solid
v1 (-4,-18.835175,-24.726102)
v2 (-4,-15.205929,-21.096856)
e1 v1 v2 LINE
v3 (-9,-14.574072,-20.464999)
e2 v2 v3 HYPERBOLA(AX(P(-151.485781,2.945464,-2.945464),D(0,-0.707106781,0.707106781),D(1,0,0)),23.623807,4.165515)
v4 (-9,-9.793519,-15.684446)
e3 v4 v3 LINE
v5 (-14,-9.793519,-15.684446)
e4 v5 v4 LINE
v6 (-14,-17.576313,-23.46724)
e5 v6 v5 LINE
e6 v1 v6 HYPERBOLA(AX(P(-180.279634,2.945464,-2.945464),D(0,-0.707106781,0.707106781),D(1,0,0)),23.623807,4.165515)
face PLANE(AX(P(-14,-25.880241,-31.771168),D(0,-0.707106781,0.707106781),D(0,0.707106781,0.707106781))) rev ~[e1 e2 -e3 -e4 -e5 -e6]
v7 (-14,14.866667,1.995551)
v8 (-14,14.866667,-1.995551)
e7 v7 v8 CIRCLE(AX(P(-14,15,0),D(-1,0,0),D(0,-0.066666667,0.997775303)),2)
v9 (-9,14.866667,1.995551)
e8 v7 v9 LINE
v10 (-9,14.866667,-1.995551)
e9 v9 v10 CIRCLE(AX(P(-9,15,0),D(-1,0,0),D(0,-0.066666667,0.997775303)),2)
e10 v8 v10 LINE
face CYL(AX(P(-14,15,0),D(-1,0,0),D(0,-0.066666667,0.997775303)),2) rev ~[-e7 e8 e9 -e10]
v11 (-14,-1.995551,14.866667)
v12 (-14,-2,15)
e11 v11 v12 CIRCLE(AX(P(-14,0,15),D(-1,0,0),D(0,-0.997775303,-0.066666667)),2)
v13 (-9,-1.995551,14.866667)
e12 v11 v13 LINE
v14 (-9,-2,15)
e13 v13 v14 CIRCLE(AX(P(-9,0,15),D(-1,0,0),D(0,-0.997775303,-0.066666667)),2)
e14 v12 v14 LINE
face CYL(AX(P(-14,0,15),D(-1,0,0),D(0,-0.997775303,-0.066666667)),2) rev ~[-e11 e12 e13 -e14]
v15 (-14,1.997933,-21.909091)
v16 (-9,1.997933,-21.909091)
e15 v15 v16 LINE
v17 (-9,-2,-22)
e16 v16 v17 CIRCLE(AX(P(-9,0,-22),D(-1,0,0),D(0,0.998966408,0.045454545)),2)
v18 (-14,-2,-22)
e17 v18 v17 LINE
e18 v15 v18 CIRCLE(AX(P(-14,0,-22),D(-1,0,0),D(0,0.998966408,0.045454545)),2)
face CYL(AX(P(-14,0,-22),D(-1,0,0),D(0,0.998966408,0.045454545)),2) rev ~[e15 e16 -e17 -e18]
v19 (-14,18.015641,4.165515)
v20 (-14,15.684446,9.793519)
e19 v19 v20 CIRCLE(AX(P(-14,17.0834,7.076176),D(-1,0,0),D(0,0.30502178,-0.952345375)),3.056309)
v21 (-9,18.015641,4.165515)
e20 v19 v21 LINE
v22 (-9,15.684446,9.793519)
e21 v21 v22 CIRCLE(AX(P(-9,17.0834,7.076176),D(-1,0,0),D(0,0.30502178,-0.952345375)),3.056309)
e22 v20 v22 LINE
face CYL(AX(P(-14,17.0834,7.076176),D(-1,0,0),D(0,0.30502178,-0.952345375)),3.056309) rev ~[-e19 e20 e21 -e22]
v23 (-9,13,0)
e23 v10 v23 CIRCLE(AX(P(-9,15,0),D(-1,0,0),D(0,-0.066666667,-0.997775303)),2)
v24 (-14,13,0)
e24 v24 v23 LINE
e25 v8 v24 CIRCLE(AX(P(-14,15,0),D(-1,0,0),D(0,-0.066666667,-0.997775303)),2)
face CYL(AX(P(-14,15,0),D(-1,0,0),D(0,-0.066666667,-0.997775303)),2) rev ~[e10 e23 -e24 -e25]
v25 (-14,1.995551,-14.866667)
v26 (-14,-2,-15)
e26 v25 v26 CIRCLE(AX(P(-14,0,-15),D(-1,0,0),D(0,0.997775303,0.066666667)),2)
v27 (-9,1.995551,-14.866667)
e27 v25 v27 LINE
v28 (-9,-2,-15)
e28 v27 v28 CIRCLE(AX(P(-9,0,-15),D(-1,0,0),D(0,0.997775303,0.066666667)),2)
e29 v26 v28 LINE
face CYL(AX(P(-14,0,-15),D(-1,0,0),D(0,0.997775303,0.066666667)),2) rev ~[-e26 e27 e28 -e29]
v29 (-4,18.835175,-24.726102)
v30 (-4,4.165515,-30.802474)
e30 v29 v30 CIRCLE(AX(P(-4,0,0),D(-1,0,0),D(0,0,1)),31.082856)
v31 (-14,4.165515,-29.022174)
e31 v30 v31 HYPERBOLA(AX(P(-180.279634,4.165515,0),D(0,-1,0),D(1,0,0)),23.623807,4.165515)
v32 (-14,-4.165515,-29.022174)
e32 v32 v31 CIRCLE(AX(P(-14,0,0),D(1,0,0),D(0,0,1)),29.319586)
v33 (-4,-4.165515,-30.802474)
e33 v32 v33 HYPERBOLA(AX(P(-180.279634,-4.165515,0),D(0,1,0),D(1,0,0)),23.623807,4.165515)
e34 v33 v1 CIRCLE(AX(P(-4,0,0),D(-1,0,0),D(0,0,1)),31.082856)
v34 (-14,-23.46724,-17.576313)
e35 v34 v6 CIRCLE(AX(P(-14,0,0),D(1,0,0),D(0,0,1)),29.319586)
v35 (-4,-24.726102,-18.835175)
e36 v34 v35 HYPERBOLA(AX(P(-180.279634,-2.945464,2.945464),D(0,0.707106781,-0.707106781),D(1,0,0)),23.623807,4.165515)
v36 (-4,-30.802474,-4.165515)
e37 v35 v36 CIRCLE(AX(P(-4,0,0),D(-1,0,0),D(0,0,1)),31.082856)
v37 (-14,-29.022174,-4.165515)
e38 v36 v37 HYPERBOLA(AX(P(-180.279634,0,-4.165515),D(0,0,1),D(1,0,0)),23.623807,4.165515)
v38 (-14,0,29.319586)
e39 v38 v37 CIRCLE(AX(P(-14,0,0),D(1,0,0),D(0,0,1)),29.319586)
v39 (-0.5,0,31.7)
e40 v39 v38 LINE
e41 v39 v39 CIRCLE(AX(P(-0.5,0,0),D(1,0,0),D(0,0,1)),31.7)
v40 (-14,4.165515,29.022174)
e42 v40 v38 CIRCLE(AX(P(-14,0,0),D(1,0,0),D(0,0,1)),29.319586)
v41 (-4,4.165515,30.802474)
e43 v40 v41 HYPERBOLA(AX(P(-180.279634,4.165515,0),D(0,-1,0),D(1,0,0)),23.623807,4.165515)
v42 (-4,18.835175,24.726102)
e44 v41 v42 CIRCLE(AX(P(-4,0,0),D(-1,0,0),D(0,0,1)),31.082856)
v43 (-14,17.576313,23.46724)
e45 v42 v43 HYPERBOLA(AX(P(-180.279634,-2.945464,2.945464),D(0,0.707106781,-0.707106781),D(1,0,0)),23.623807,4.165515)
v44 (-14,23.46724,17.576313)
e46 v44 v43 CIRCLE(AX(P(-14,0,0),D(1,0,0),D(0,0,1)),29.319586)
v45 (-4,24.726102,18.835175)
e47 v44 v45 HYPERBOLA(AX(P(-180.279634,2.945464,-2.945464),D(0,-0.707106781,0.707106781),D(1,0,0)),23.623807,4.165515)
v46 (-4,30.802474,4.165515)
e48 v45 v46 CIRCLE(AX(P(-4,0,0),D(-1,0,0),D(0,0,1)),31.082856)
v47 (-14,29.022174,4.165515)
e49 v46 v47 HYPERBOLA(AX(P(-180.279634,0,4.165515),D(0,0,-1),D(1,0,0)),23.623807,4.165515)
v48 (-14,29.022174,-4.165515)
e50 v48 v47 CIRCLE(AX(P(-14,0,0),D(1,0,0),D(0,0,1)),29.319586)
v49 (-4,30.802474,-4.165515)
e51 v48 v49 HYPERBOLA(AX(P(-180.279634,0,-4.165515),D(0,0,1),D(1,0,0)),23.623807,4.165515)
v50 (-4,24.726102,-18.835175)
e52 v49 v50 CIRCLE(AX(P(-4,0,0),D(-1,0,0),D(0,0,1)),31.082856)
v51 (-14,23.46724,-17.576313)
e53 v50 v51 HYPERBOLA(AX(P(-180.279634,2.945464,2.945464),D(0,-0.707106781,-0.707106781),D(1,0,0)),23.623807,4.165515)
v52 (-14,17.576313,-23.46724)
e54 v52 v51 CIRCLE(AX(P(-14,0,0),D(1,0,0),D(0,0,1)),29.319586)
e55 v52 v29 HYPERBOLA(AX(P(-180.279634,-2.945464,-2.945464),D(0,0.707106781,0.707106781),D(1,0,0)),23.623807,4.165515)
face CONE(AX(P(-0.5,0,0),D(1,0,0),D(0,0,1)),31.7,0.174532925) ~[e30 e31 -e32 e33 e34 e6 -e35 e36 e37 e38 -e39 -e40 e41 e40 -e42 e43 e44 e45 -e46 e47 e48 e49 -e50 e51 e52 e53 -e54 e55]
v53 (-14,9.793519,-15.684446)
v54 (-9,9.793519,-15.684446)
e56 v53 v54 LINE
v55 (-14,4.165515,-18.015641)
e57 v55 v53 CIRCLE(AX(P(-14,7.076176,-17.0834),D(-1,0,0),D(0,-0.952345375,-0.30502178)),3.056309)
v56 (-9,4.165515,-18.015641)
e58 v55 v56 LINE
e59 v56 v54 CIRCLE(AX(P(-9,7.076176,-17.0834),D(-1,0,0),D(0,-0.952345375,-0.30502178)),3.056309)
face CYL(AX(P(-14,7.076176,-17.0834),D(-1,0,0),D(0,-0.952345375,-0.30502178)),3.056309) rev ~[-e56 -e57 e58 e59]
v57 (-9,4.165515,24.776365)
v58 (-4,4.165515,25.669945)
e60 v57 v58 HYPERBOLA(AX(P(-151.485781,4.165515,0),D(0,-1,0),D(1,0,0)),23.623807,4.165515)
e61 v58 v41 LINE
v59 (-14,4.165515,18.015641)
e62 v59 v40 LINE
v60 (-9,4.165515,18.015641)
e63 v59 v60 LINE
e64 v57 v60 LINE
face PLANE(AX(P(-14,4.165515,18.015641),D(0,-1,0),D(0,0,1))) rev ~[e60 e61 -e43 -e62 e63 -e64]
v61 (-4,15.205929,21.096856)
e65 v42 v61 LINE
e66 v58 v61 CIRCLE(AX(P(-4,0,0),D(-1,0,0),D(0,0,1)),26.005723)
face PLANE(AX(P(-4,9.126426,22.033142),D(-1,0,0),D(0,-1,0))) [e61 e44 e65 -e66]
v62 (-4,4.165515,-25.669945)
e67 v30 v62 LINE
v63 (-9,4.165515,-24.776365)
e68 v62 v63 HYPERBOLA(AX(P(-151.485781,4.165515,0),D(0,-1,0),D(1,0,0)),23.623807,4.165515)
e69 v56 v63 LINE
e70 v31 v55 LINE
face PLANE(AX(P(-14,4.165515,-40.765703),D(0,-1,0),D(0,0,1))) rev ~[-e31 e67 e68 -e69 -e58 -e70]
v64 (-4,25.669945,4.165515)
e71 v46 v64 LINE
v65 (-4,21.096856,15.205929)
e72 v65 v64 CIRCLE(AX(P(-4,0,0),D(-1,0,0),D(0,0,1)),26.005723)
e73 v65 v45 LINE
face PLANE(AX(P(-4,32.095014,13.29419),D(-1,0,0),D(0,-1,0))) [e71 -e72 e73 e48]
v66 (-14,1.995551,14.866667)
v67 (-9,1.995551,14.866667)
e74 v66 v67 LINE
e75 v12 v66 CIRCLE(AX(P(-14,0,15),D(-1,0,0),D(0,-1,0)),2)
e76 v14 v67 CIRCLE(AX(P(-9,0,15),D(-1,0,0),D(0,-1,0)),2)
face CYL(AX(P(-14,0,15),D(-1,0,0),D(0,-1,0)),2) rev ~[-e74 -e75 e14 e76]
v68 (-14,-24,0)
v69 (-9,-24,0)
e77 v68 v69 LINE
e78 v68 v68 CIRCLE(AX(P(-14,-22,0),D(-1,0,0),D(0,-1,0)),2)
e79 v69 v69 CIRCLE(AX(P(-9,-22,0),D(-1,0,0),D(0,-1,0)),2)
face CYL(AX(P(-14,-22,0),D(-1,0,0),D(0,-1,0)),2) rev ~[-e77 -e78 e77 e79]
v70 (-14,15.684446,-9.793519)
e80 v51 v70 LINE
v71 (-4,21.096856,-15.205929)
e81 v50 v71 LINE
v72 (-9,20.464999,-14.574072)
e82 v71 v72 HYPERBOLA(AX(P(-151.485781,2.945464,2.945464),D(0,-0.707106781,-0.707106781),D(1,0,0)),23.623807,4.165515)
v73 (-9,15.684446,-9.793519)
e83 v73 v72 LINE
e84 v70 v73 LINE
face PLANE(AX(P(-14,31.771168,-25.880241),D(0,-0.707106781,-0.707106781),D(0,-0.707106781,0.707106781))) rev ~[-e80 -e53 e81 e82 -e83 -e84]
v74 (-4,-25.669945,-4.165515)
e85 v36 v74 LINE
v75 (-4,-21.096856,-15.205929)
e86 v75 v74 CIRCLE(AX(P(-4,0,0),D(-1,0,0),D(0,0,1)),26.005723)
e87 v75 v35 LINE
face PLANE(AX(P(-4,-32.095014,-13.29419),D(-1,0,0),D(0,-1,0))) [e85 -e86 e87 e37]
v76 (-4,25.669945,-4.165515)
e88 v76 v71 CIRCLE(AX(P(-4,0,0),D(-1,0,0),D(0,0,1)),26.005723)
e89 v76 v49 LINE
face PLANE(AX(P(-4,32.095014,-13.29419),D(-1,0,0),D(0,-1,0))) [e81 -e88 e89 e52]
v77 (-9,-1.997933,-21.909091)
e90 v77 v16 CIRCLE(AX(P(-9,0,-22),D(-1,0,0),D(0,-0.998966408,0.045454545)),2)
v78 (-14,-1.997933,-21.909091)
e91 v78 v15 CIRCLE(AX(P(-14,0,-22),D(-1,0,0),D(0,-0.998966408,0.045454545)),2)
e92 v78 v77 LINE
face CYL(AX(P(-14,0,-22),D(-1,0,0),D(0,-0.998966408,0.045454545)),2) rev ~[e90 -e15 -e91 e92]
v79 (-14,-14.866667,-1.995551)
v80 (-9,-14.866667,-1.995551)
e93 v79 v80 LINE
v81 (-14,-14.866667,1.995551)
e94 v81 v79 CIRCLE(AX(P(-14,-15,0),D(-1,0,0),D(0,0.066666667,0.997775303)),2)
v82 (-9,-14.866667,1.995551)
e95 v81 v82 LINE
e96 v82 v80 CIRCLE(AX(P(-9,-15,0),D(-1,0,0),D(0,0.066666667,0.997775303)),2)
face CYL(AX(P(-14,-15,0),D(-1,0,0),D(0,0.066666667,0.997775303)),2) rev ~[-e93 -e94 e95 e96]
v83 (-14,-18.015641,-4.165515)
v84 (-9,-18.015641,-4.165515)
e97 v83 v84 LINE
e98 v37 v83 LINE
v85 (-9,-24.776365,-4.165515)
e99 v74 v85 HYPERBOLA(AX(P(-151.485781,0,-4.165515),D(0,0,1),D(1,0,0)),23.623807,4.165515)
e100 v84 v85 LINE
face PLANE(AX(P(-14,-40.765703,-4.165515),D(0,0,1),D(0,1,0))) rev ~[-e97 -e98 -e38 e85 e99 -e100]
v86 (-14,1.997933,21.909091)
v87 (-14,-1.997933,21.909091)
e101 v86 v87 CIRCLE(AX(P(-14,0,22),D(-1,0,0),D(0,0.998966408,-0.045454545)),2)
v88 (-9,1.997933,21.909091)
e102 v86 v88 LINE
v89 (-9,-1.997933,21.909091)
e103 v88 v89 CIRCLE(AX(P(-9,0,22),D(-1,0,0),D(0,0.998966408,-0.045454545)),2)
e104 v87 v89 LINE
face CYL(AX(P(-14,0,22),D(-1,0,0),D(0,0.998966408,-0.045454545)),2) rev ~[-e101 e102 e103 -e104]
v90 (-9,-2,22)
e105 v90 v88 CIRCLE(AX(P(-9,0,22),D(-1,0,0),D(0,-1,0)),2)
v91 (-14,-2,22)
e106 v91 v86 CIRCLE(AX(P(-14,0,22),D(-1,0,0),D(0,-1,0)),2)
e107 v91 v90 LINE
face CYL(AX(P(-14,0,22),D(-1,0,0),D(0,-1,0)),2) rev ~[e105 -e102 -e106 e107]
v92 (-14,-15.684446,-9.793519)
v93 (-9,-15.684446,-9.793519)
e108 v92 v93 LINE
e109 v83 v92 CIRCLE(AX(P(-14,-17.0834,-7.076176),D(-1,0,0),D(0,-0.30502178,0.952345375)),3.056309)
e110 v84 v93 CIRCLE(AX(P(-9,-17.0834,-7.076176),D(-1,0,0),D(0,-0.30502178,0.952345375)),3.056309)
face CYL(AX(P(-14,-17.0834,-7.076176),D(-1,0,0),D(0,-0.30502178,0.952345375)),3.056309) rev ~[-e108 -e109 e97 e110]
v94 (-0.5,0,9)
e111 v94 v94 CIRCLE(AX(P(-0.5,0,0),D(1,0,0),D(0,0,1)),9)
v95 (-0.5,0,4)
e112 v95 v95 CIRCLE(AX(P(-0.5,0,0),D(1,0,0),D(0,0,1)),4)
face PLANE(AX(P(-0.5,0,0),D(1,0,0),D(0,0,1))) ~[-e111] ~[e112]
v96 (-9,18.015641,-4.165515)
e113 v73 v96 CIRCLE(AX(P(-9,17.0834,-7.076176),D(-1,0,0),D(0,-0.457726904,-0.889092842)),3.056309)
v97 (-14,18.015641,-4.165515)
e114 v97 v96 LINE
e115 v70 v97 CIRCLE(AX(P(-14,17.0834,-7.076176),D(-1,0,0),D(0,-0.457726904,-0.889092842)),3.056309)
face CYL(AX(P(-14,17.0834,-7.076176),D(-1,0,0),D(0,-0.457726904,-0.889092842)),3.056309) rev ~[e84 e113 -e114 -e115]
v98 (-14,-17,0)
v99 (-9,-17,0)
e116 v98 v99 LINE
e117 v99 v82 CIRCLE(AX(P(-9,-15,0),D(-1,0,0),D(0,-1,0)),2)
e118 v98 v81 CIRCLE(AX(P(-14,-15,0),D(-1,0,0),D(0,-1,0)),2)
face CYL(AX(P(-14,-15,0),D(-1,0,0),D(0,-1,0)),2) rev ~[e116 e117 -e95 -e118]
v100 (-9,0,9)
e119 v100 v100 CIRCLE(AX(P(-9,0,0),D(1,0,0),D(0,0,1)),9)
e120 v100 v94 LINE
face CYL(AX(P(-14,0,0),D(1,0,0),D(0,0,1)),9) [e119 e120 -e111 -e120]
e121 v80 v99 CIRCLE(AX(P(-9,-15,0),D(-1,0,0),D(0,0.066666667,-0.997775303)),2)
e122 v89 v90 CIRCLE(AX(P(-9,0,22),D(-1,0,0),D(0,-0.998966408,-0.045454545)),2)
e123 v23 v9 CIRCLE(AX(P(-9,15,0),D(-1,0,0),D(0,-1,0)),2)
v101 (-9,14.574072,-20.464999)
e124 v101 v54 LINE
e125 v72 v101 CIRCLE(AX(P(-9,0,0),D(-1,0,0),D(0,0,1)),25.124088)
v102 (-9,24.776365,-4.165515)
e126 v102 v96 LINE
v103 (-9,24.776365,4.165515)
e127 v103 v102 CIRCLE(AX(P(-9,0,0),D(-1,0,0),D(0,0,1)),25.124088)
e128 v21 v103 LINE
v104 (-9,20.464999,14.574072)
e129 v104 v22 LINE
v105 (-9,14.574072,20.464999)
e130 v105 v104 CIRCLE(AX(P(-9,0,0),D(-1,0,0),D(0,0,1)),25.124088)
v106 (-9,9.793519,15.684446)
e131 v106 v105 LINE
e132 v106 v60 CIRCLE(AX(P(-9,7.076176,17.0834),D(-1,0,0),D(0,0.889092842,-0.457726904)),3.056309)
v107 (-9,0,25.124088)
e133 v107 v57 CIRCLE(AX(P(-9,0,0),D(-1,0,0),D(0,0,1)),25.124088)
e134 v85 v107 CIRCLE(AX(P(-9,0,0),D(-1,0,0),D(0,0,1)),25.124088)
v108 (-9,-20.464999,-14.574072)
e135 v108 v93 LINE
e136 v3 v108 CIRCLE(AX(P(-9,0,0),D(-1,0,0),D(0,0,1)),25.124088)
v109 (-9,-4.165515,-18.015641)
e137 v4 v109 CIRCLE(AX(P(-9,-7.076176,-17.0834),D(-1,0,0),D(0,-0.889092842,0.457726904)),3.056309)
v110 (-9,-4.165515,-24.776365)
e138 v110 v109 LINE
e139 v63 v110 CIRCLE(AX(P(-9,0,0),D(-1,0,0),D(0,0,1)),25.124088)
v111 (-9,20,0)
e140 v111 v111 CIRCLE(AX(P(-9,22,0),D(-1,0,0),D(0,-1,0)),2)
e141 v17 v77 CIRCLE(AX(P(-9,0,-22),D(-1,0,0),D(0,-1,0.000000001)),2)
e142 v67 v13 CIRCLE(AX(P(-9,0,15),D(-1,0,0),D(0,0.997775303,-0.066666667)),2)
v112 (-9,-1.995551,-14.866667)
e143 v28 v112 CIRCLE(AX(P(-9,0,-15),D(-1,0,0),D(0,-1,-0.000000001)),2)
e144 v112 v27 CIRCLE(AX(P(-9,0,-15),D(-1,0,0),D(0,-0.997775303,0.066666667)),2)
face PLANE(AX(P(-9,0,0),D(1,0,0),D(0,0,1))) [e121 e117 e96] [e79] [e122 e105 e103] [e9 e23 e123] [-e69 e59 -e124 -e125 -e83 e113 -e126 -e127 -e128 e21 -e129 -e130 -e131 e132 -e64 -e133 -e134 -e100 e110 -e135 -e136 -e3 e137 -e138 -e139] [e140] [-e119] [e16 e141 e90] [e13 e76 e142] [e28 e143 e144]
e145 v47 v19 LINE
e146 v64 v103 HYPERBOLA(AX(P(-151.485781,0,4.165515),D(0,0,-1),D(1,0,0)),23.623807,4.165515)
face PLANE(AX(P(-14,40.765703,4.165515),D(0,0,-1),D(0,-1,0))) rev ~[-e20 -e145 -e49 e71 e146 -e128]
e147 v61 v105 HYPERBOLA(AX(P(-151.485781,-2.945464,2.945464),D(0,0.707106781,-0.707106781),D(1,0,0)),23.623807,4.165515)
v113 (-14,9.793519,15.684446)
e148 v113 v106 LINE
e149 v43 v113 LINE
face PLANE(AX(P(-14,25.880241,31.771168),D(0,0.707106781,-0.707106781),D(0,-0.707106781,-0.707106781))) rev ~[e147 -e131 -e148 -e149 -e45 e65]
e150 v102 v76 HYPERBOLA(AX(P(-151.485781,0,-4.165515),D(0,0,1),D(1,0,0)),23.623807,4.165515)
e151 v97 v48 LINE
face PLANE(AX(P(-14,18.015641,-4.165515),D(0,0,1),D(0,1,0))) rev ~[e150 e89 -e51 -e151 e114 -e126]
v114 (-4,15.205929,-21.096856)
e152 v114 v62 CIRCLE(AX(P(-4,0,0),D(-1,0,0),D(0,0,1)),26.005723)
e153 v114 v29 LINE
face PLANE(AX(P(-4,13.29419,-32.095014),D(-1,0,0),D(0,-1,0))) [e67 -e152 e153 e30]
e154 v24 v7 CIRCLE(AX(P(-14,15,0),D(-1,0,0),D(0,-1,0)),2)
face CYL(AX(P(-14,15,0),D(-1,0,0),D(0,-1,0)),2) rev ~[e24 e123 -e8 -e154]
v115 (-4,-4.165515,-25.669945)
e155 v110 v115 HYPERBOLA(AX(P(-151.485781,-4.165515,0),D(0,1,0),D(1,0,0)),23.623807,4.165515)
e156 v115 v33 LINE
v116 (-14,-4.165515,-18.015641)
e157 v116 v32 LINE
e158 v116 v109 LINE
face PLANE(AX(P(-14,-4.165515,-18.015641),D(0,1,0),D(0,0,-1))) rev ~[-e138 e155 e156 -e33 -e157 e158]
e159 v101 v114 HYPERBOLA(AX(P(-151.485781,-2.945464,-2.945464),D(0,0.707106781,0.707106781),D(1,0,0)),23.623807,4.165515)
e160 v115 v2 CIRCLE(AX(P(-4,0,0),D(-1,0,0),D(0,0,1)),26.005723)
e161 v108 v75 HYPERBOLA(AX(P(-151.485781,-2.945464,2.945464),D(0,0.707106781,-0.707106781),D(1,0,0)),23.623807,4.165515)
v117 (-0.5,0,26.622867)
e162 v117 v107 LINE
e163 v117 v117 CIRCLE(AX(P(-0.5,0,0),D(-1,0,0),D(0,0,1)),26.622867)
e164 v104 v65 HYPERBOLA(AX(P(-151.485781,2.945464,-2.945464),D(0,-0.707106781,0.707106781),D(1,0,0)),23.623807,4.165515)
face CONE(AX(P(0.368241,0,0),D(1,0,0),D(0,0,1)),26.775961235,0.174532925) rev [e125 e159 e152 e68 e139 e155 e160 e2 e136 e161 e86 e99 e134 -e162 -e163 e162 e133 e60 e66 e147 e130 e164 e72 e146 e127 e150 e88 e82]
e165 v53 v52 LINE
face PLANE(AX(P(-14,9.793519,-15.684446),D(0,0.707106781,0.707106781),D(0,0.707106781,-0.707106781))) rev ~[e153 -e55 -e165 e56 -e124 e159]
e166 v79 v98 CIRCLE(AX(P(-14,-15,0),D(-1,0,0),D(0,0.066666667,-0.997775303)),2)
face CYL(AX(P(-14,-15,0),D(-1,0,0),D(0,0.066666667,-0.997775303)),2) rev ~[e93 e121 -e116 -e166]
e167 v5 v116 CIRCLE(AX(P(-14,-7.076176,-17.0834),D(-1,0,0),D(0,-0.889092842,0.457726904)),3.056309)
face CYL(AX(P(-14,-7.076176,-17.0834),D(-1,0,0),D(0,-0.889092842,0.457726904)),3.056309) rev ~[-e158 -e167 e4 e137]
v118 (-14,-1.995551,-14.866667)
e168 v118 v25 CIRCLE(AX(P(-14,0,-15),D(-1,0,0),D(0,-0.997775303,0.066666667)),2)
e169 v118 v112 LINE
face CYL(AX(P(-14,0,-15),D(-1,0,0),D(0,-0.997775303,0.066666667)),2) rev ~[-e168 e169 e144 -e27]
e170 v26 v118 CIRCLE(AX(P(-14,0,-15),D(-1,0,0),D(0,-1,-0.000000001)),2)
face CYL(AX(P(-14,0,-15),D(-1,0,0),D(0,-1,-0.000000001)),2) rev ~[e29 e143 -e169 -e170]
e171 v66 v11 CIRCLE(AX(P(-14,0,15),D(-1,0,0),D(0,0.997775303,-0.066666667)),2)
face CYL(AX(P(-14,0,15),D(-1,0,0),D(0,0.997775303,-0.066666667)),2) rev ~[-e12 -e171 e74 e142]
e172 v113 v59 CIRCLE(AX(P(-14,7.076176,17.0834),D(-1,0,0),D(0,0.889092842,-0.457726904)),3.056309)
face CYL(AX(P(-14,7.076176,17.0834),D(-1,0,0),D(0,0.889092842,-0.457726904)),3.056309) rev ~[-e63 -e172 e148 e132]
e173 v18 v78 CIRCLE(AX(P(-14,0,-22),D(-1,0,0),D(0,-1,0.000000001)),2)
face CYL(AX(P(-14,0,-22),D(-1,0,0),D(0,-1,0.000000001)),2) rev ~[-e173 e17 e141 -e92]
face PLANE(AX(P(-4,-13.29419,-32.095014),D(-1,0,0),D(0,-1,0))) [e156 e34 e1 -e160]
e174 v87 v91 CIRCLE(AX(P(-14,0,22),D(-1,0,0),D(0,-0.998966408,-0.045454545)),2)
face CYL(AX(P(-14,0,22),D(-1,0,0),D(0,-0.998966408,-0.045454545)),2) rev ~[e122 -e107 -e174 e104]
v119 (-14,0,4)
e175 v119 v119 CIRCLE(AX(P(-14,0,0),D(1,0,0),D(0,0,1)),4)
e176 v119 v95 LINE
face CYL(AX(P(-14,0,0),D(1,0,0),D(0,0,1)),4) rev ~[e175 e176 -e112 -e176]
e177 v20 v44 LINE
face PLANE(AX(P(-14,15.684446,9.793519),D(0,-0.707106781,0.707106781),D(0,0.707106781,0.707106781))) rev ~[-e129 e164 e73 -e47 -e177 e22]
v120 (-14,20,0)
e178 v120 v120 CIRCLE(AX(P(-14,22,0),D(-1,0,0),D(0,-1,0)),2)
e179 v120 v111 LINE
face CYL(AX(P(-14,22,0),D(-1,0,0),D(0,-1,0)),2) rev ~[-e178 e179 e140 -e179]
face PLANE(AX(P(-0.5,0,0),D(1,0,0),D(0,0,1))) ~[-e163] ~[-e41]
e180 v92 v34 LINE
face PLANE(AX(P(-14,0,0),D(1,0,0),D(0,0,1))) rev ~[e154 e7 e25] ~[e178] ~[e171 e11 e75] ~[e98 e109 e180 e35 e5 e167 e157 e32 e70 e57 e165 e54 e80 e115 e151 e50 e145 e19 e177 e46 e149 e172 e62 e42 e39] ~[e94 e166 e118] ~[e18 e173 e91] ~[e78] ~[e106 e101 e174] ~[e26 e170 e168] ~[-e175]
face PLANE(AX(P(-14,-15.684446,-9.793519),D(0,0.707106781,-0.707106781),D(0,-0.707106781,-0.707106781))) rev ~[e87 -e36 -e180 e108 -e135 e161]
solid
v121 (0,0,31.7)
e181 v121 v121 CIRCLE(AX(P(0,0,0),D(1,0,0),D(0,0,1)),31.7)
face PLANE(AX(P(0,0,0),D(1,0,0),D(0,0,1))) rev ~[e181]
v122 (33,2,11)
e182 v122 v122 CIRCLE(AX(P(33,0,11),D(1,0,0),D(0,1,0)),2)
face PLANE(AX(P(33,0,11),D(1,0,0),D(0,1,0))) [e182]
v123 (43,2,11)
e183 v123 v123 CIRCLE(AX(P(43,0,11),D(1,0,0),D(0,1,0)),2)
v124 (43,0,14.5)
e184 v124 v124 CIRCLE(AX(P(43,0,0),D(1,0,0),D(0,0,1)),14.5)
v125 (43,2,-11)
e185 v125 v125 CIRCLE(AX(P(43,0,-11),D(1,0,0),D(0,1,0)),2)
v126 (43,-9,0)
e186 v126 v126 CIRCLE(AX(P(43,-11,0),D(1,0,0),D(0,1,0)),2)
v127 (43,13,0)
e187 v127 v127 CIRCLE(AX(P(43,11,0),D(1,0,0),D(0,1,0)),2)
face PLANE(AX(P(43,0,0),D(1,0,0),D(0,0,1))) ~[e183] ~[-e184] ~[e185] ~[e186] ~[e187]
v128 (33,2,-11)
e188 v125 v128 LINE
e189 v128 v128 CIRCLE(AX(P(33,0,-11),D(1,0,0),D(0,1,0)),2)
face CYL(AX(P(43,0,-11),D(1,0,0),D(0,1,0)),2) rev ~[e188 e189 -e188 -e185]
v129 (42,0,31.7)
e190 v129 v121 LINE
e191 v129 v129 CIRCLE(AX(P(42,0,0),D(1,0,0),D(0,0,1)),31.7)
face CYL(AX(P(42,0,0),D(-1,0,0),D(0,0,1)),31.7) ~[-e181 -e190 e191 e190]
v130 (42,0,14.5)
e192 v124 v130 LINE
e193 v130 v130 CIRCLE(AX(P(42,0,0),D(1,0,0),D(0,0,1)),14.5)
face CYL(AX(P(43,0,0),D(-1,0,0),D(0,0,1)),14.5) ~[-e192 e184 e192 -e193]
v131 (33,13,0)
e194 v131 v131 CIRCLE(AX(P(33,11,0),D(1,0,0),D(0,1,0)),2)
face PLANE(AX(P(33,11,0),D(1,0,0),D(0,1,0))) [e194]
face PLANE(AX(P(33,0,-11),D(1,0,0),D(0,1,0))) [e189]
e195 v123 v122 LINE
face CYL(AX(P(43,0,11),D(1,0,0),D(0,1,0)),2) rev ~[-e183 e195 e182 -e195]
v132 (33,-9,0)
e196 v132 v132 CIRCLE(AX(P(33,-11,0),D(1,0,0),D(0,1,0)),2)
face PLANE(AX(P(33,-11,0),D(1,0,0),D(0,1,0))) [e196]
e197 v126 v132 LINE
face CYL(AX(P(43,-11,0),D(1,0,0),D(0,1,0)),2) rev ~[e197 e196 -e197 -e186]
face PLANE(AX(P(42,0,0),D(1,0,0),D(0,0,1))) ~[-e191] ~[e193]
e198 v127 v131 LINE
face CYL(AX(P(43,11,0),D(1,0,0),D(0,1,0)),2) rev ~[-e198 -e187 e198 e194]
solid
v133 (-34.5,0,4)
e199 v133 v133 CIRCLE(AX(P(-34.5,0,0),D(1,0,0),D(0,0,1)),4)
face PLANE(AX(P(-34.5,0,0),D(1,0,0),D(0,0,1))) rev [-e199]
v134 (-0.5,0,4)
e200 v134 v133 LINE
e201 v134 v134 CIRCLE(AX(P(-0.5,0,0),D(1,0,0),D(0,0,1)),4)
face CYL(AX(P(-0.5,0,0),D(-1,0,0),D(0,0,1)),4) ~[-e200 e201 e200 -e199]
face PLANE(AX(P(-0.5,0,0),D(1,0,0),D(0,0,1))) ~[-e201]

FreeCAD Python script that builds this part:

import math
import FreeCAD as App
import Part
import Sketcher

V = App.Vector
Q = App.Units.Quantity


def faces_at(feature, points):
    """Names of the faces that lie closest to the given points."""
    faces = feature.Shape.Faces
    near = lambda p: min(range(len(faces)), key=lambda i: faces[i].distToShape(Part.Vertex(*p))[0])
    return sorted({f"Face{near(p) + 1}" for p in points})

doc = App.newDocument("Part")
body = doc.addObject("PartDesign::Body", "Body")

# Sketch on XZ plane
sketch1 = body.newObject("Sketcher::SketchObject", "Sketch")
sketch1.AttachmentSupport = (doc.getObject("XZ_Plane"), [""])
sketch1.MapMode = "FlatFace"
sketch1.addGeometry(Part.LineSegment(V(-14, 4, 0), V(-0.5, 4, 0)), False)
sketch1.addGeometry(Part.LineSegment(V(-0.5, 4, 0), V(-0.5, 31.7, 0)), False)
sketch1.addGeometry(Part.LineSegment(V(-0.5, 31.7, 0), V(-14, 29.319586, 0)), False)
sketch1.addGeometry(Part.LineSegment(V(-14, 29.319586, 0), V(-14, 4, 0)), False)
sketch1.addConstraint(Sketcher.Constraint("Coincident", 0, 2, 1, 1))
sketch1.addConstraint(Sketcher.Constraint("Coincident", 1, 2, 2, 1))
sketch1.addConstraint(Sketcher.Constraint("Coincident", 2, 2, 3, 1))
sketch1.addConstraint(Sketcher.Constraint("Coincident", 3, 2, 0, 1))
sketch1.addConstraint(Sketcher.Constraint("Horizontal", 0))
sketch1.addConstraint(Sketcher.Constraint("Vertical", 1))
sketch1.addConstraint(Sketcher.Constraint("Vertical", 3))
sketch1.addConstraint(Sketcher.Constraint("Angle", 2, Q("-170 deg")))
sketch1.addConstraint(Sketcher.Constraint("DistanceX", 0, 1, 0, 2, Q("13.5 mm")))
sketch1.addConstraint(Sketcher.Constraint("DistanceY", 1, 1, 1, 2, Q("27.7 mm")))
sketch1.addConstraint(Sketcher.Constraint("DistanceY", -1, 1, 0, 2, Q("4 mm")))
sketch1.addConstraint(Sketcher.Constraint("DistanceX", 2, 2, -1, 1, Q("14 mm")))
revolution = body.newObject("PartDesign::Revolution", "Revolution")
revolution.Profile = sketch1
revolution.ReferenceAxis = (sketch1, ["H_Axis"])
revolution.Angle = 360
doc.recompute()

thickness = body.newObject("PartDesign::Thickness", "Thickness")
thickness.Base = (revolution, faces_at(revolution, [(-0.5, 12.68, 12.68)]))
thickness.Value = 5
thickness.Reversed = True
thickness.Join = "Arc"

# Sketch on YZ plane
sketch2 = body.newObject("Sketcher::SketchObject", "Sketch001")
sketch2.AttachmentSupport = (doc.getObject("YZ_Plane"), [""])
sketch2.MapMode = "FlatFace"
sketch2.AttachmentOffset = App.Placement(V(0, 0, -14), App.Rotation())
sketch2.addGeometry(Part.Circle(V(22, 0, 0), V(0, 0, 1), 2), False)
sketch2.addGeometry(Part.ArcOfCircle(Part.Circle(V(15, 0, 0), V(0, 0, 1), 2), math.radians(93.822554), math.radians(180)), False)
sketch2.addGeometry(Part.ArcOfCircle(Part.Circle(V(15, 0, 0), V(0, 0, 1), 2), math.radians(-93.822554), math.radians(93.822554)), False)
sketch2.addGeometry(Part.ArcOfCircle(Part.Circle(V(15, 0, 0), V(0, 0, 1), 2), math.radians(180), math.radians(266.177446)), False)
sketch2.addGeometry(Part.ArcOfCircle(Part.Circle(V(0, 22, 0), V(0, 0, 1), 2), math.radians(-177.394749), math.radians(-2.605251)), False)
sketch2.addGeometry(Part.ArcOfCircle(Part.Circle(V(0, 22, 0), V(0, 0, 1), 2), math.radians(-180), math.radians(-177.394749)), False)
sketch2.addGeometry(Part.ArcOfCircle(Part.Circle(V(0, 22, 0), V(0, 0, 1), 2), math.radians(-2.605251), math.radians(180)), False)
sketch2.addGeometry(Part.ArcOfCircle(Part.Circle(V(0, 15, 0), V(0, 0, 1), 2), math.radians(180), math.radians(183.822554)), False)
sketch2.addGeometry(Part.ArcOfCircle(Part.Circle(V(0, 15, 0), V(0, 0, 1), 2), math.radians(-3.822554), math.radians(180)), False)
sketch2.addGeometry(Part.ArcOfCircle(Part.Circle(V(0, 15, 0), V(0, 0, 1), 2), math.radians(-176.177446), math.radians(-3.822554)), False)
sketch2.addGeometry(Part.ArcOfCircle(Part.Circle(V(-15, 0, 0), V(0, 0, 1), 2), math.radians(-86.177446), math.radians(86.177446)), False)
sketch2.addGeometry(Part.ArcOfCircle(Part.Circle(V(-15, 0, 0), V(0, 0, 1), 2), math.radians(180), math.radians(273.822554)), False)
sketch2.addGeometry(Part.ArcOfCircle(Part.Circle(V(-15, 0, 0), V(0, 0, 1), 2), math.radians(86.177446), math.radians(180)), False)
sketch2.addGeometry(Part.Circle(V(-22, 0, 0), V(0, 0, 1), 2), False)
sketch2.addGeometry(Part.ArcOfCircle(Part.Circle(V(0, -22, 0), V(0, 0, 1), 2), math.radians(2.605251), math.radians(177.394749)), False)
sketch2.addGeometry(Part.ArcOfCircle(Part.Circle(V(0, -22, 0), V(0, 0, 1), 2), math.radians(180), math.radians(362.605251)), False)
sketch2.addGeometry(Part.ArcOfCircle(Part.Circle(V(0, -22, 0), V(0, 0, 1), 2), math.radians(177.394749), math.radians(180)), False)
sketch2.addGeometry(Part.ArcOfCircle(Part.Circle(V(0, -15, 0), V(0, 0, 1), 2), math.radians(176.177446), math.radians(180)), False)
sketch2.addGeometry(Part.ArcOfCircle(Part.Circle(V(0, -15, 0), V(0, 0, 1), 2), math.radians(3.822554), math.radians(176.177446)), False)
sketch2.addGeometry(Part.ArcOfCircle(Part.Circle(V(0, -15, 0), V(0, 0, 1), 2), math.radians(180), math.radians(363.822554)), False)
sketch2.addConstraint(Sketcher.Constraint("Tangent", 1, 1, 2, 2))
sketch2.addConstraint(Sketcher.Constraint("Tangent", 2, 1, 3, 2))
sketch2.addConstraint(Sketcher.Constraint("Tangent", 3, 1, 1, 2))
sketch2.addConstraint(Sketcher.Constraint("Tangent", 4, 1, 5, 2))
sketch2.addConstraint(Sketcher.Constraint("Tangent", 5, 1, 6, 2))
sketch2.addConstraint(Sketcher.Constraint("Tangent", 6, 1, 4, 2))
sketch2.addConstraint(Sketcher.Constraint("Tangent", 7, 1, 8, 2))
sketch2.addConstraint(Sketcher.Constraint("Tangent", 8, 1, 9, 2))
sketch2.addConstraint(Sketcher.Constraint("Tangent", 9, 1, 7, 2))
sketch2.addConstraint(Sketcher.Constraint("Tangent", 10, 1, 11, 2))
sketch2.addConstraint(Sketcher.Constraint("Tangent", 11, 1, 12, 2))
sketch2.addConstraint(Sketcher.Constraint("Tangent", 12, 1, 10, 2))
sketch2.addConstraint(Sketcher.Constraint("Tangent", 14, 1, 15, 2))
sketch2.addConstraint(Sketcher.Constraint("Tangent", 15, 1, 16, 2))
sketch2.addConstraint(Sketcher.Constraint("Tangent", 16, 1, 14, 2))
sketch2.addConstraint(Sketcher.Constraint("Tangent", 17, 1, 18, 2))
sketch2.addConstraint(Sketcher.Constraint("Tangent", 18, 1, 19, 2))
sketch2.addConstraint(Sketcher.Constraint("Tangent", 19, 1, 17, 2))
sketch2.addConstraint(Sketcher.Constraint("Equal", 0, 1))
sketch2.addConstraint(Sketcher.Constraint("Equal", 3, 4))
sketch2.addConstraint(Sketcher.Constraint("Equal", 6, 7))
sketch2.addConstraint(Sketcher.Constraint("Equal", 9, 10))
sketch2.addConstraint(Sketcher.Constraint("Equal", 12, 13))
sketch2.addConstraint(Sketcher.Constraint("Equal", 13, 14))
sketch2.addConstraint(Sketcher.Constraint("Equal", 16, 17))
sketch2.addConstraint(Sketcher.Constraint("Symmetric", 1, 3, 10, 3, -1, 1))
sketch2.addConstraint(Sketcher.Constraint("Symmetric", 0, 3, 13, 3, -1, 1))
sketch2.addConstraint(Sketcher.Constraint("Symmetric", 4, 3, 14, 3, -1, 1))
sketch2.addConstraint(Sketcher.Constraint("Symmetric", 7, 3, 17, 3, -1, 1))
sketch2.addConstraint(Sketcher.Constraint("Symmetric", 4, 1, 6, 1, -2))
sketch2.addConstraint(Sketcher.Constraint("Symmetric", 8, 1, 9, 1, -2))
sketch2.addConstraint(Sketcher.Constraint("Symmetric", 2, 1, 10, 1, -2))
sketch2.addConstraint(Sketcher.Constraint("PointOnObject", 0, 3, -1))
sketch2.addConstraint(Sketcher.Constraint("PointOnObject", 3, 1, -1))
sketch2.addConstraint(Sketcher.Constraint("PointOnObject", 11, 1, -1))
sketch2.addConstraint(Sketcher.Constraint("Horizontal", 6, 3, 5, 1))
sketch2.addConstraint(Sketcher.Constraint("Horizontal", 9, 3, 7, 1))
sketch2.addConstraint(Sketcher.Constraint("Horizontal", 1, 1, 12, 1))
sketch2.addConstraint(Sketcher.Constraint("Horizontal", 16, 3, 15, 1))
sketch2.addConstraint(Sketcher.Constraint("Horizontal", 14, 1, 16, 1))
sketch2.addConstraint(Sketcher.Constraint("Horizontal", 17, 1, 18, 1))
sketch2.addConstraint(Sketcher.Constraint("Horizontal", 18, 3, 19, 1))
sketch2.addConstraint(Sketcher.Constraint("Vertical", 1, 1, 2, 1))
sketch2.addConstraint(Sketcher.Constraint("Vertical", 6, 1, 14, 1))
sketch2.addConstraint(Sketcher.Constraint("Vertical", 9, 1, 17, 1))
sketch2.addConstraint(Sketcher.Constraint("Diameter", 0, Q("4 mm")))
sketch2.addConstraint(Sketcher.Constraint("DistanceX", -1, 1, 0, 3, Q("22 mm")))
sketch2.addConstraint(Sketcher.Constraint("DistanceX", -1, 1, 1, 3, Q("15 mm")))
sketch2.addConstraint(Sketcher.Constraint("DistanceY", -1, 1, 4, 3, Q("22 mm")))
sketch2.addConstraint(Sketcher.Constraint("DistanceY", -1, 1, 7, 3, Q("15 mm")))
sketch2.addConstraint(Sketcher.Constraint("DistanceY", 2, 1, 1, 1, Q("3.991101 mm")))
sketch2.addConstraint(Sketcher.Constraint("DistanceX", 9, 1, 8, 1, Q("3.991101 mm")))
sketch2.addConstraint(Sketcher.Constraint("DistanceY", -1, 1, 4, 1, Q("21.909091 mm")))
pocket1 = body.newObject("PartDesign::Pocket", "Pocket")
pocket1.Profile = sketch2
pocket1.Length = 10
pocket1.Reversed = True

# Sketch on YZ plane
sketch3 = body.newObject("Sketcher::SketchObject", "Sketch002")
sketch3.AttachmentSupport = (doc.getObject("YZ_Plane"), [""])
sketch3.MapMode = "FlatFace"
sketch3.AttachmentOffset = App.Placement(V(0, 0, -14), App.Rotation())
sketch3.addGeometry(Part.ArcOfCircle(Part.Circle(V(7.076176, 17.0834, 0), V(0, 0, 1), 3.056309), math.radians(162.240526), math.radians(332.759474)), False)
sketch3.addGeometry(Part.LineSegment(V(4.165515, 18.015641, 0), V(4.165515, 40.765703, 0)), False)
sketch3.addGeometry(Part.LineSegment(V(4.165515, 40.765703, 0), V(15.022878, 36.268436, 0)), False)
sketch3.addGeometry(Part.LineSegment(V(15.022878, 36.268436, 0), V(25.880241, 31.771168, 0)), False)
sketch3.addGeometry(Part.LineSegment(V(25.880241, 31.771168, 0), V(9.793519, 15.684446, 0)), False)
sketch3.addGeometry(Part.LineSegment(V(31.771168, 25.880241, 0), V(36.268436, 15.022878, 0)), False)
sketch3.addGeometry(Part.LineSegment(V(36.268436, 15.022878, 0), V(40.765703, 4.165515, 0)), False)
sketch3.addGeometry(Part.LineSegment(V(40.765703, 4.165515, 0), V(18.015641, 4.165515, 0)), False)
sketch3.addGeometry(Part.ArcOfCircle(Part.Circle(V(17.0834, 7.076176, 0), V(0, 0, 1), 3.056309), math.radians(117.240526), math.radians(287.759474)), False)
sketch3.addGeometry(Part.LineSegment(V(15.684446, 9.793519, 0), V(31.771168, 25.880241, 0)), False)
sketch3.addGeometry(Part.LineSegment(V(40.765703, -4.165515, 0), V(36.268436, -15.022878, 0)), False)
sketch3.addGeometry(Part.LineSegment(V(36.268436, -15.022878, 0), V(31.771168, -25.880241, 0)), False)
sketch3.addGeometry(Part.LineSegment(V(31.771168, -25.880241, 0), V(15.684446, -9.793519, 0)), False)
sketch3.addGeometry(Part.ArcOfCircle(Part.Circle(V(17.0834, -7.076176, 0), V(0, 0, 1), 3.056309), math.radians(72.240526), math.radians(242.759474)), False)
sketch3.addGeometry(Part.LineSegment(V(18.015641, -4.165515, 0), V(40.765703, -4.165515, 0)), False)
sketch3.addGeometry(Part.LineSegment(V(25.880241, -31.771168, 0), V(15.022878, -36.268436, 0)), False)
sketch3.addGeometry(Part.LineSegment(V(15.022878, -36.268436, 0), V(4.165515, -40.765703, 0)), False)
sketch3.addGeometry(Part.LineSegment(V(4.165515, -40.765703, 0), V(4.165515, -18.015641, 0)), False)
sketch3.addGeometry(Part.ArcOfCircle(Part.Circle(V(7.076176, -17.0834, 0), V(0, 0, 1), 3.056309), math.radians(27.240526), math.radians(197.759474)), False)
sketch3.addGeometry(Part.LineSegment(V(9.793519, -15.684446, 0), V(25.880241, -31.771168, 0)), False)
sketch3.addGeometry(Part.LineSegment(V(-4.165515, -40.765703, 0), V(-15.022878, -36.268436, 0)), False)
sketch3.addGeometry(Part.LineSegment(V(-15.022878, -36.268436, 0), V(-25.880241, -31.771168, 0)), False)
sketch3.addGeometry(Part.LineSegment(V(-25.880241, -31.771168, 0), V(-9.793519, -15.684446, 0)), False)
sketch3.addGeometry(Part.ArcOfCircle(Part.Circle(V(-7.076176, -17.0834, 0), V(0, 0, 1), 3.056309), math.radians(-17.759474), math.radians(152.759474)), False)
sketch3.addGeometry(Part.LineSegment(V(-4.165515, -18.015641, 0), V(-4.165515, -40.765703, 0)), False)
sketch3.addGeometry(Part.LineSegment(V(-40.765703, -4.165515, 0), V(-18.015641, -4.165515, 0)), False)
sketch3.addGeometry(Part.ArcOfCircle(Part.Circle(V(-17.0834, -7.076176, 0), V(0, 0, 1), 3.056309), math.radians(-62.759474), math.radians(107.759474)), False)
sketch3.addGeometry(Part.LineSegment(V(-15.684446, -9.793519, 0), V(-31.771168, -25.880241, 0)), False)
sketch3.addGeometry(Part.LineSegment(V(-31.771168, -25.880241, 0), V(-36.268436, -15.022878, 0)), False)
sketch3.addGeometry(Part.LineSegment(V(-36.268436, -15.022878, 0), V(-40.765703, -4.165515, 0)), False)
sketch3.addConstraint(Sketcher.Constraint("Coincident", 0, 1, 1, 1))
sketch3.addConstraint(Sketcher.Constraint("Coincident", 1, 2, 2, 1))
sketch3.addConstraint(Sketcher.Constraint("Coincident", 2, 2, 3, 1))
sketch3.addConstraint(Sketcher.Constraint("Coincident", 3, 2, 4, 1))
sketch3.addConstraint(Sketcher.Constraint("Coincident", 4, 2, 0, 2))
sketch3.addConstraint(Sketcher.Constraint("Coincident", 5, 2, 6, 1))
sketch3.addConstraint(Sketcher.Constraint("Coincident", 6, 2, 7, 1))
sketch3.addConstraint(Sketcher.Constraint("Coincident", 7, 2, 8, 2))
sketch3.addConstraint(Sketcher.Constraint("Coincident", 8, 1, 9, 1))
sketch3.addConstraint(Sketcher.Constraint("Coincident", 9, 2, 5, 1))
sketch3.addConstraint(Sketcher.Constraint("Coincident", 10, 2, 11, 1))
sketch3.addConstraint(Sketcher.Constraint("Coincident", 11, 2, 12, 1))
sketch3.addConstraint(Sketcher.Constraint("Coincident", 12, 2, 13, 2))
sketch3.addConstraint(Sketcher.Constraint("Coincident", 13, 1, 14, 1))
sketch3.addConstraint(Sketcher.Constraint("Coincident", 14, 2, 10, 1))
sketch3.addConstraint(Sketcher.Constraint("Coincident", 15, 2, 16, 1))
sketch3.addConstraint(Sketcher.Constraint("Coincident", 16, 2, 17, 1))
sketch3.addConstraint(Sketcher.Constraint("Coincident", 17, 2, 18, 2))
sketch3.addConstraint(Sketcher.Constraint("Coincident", 18, 1, 19, 1))
sketch3.addConstraint(Sketcher.Constraint("Coincident", 19, 2, 15, 1))
sketch3.addConstraint(Sketcher.Constraint("Coincident", 20, 2, 21, 1))
sketch3.addConstraint(Sketcher.Constraint("Coincident", 21, 2, 22, 1))
sketch3.addConstraint(Sketcher.Constraint("Coincident", 22, 2, 23, 2))
sketch3.addConstraint(Sketcher.Constraint("Coincident", 23, 1, 24, 1))
sketch3.addConstraint(Sketcher.Constraint("Coincident", 24, 2, 20, 1))
sketch3.addConstraint(Sketcher.Constraint("Coincident", 25, 2, 26, 2))
sketch3.addConstraint(Sketcher.Constraint("Coincident", 26, 1, 27, 1))
sketch3.addConstraint(Sketcher.Constraint("Coincident", 27, 2, 28, 1))
sketch3.addConstraint(Sketcher.Constraint("Coincident", 28, 2, 29, 1))
sketch3.addConstraint(Sketcher.Constraint("Coincident", 29, 2, 25, 1))
sketch3.addConstraint(Sketcher.Constraint("Vertical", 1))
sketch3.addConstraint(Sketcher.Constraint("Horizontal", 7))
sketch3.addConstraint(Sketcher.Constraint("Horizontal", 14))
sketch3.addConstraint(Sketcher.Constraint("Vertical", 17))
sketch3.addConstraint(Sketcher.Constraint("Vertical", 24))
sketch3.addConstraint(Sketcher.Constraint("Horizontal", 25))
sketch3.addConstraint(Sketcher.Constraint("Equal", 0, 8))
sketch3.addConstraint(Sketcher.Constraint("Equal", 8, 13))
sketch3.addConstraint(Sketcher.Constraint("Equal", 13, 18))
sketch3.addConstraint(Sketcher.Constraint("Equal", 18, 23))
sketch3.addConstraint(Sketcher.Constraint("Equal", 23, 26))
sketch3.addConstraint(Sketcher.Constraint("Symmetric", 0, 3, 23, 3, -1, 1))
sketch3.addConstraint(Sketcher.Constraint("Symmetric", 8, 3, 26, 3, -1, 1))
sketch3.addConstraint(Sketcher.Constraint("Symmetric", 2, 2, 20, 2, -1, 1))
sketch3.addConstraint(Sketcher.Constraint("Symmetric", 3, 2, 21, 2, -1, 1))
sketch3.addConstraint(Sketcher.Constraint("Symmetric", 1, 2, 24, 2, -1, 1))
sketch3.addConstraint(Sketcher.Constraint("Symmetric", 9, 2, 27, 2, -1, 1))
sketch3.addConstraint(Sketcher.Constraint("Symmetric", 5, 2, 28, 2, -1, 1))
sketch3.addConstraint(Sketcher.Constraint("Symmetric", 6, 2, 29, 2, -1, 1))
sketch3.addConstraint(Sketcher.Constraint("Symmetric", 18, 3, 23, 3, -2))
sketch3.addConstraint(Sketcher.Constraint("Symmetric", 13, 3, 26, 3, -2))
sketch3.addConstraint(Sketcher.Constraint("Symmetric", 15, 2, 20, 2, -2))
sketch3.addConstraint(Sketcher.Constraint("Symmetric", 19, 2, 21, 2, -2))
sketch3.addConstraint(Sketcher.Constraint("Symmetric", 16, 2, 24, 2, -2))
sketch3.addConstraint(Sketcher.Constraint("Symmetric", 11, 2, 27, 2, -2))
sketch3.addConstraint(Sketcher.Constraint("Symmetric", 10, 2, 28, 2, -2))
sketch3.addConstraint(Sketcher.Constraint("Symmetric", 14, 2, 29, 2, -2))
sketch3.addConstraint(Sketcher.Constraint("Parallel", 2, 3))
sketch3.addConstraint(Sketcher.Constraint("Parallel", 5, 6))
sketch3.addConstraint(Sketcher.Constraint("Parallel", 4, 9))
sketch3.addConstraint(Sketcher.Constraint("Perpendicular", 3, 10))
sketch3.addConstraint(Sketcher.Constraint("Perpendicular", 9, 12))
sketch3.addConstraint(Sketcher.Constraint("Parallel", 12, 19))
sketch3.addConstraint(Sketcher.Constraint("Perpendicular", 19, 22))
sketch3.addConstraint(Sketcher.Constraint("Parallel", 22, 27))
sketch3.addConstraint(Sketcher.Constraint("Horizontal", 18, 1, 22, 2))
sketch3.addConstraint(Sketcher.Constraint("Equal", 25, 1))
sketch3.addConstraint(Sketcher.Constraint("Equal", 2, 3))
sketch3.addConstraint(Sketcher.Constraint("Equal", 3, 5))
sketch3.addConstraint(Sketcher.Constraint("Equal", 5, 6))
sketch3.addConstraint(Sketcher.Constraint("Equal", 4, 9))
sketch3.addConstraint(Sketcher.Constraint("Angle", 2, Q("-22.5 deg")))
sketch3.addConstraint(Sketcher.Constraint("Radius", 0, Q("3.056309 mm")))
sketch3.addConstraint(Sketcher.Constraint("DistanceX", 7, 2, 7, 1, Q("22.750061 mm")))
sketch3.addConstraint(Sketcher.Constraint("DistanceY", -1, 1, 0, 3, Q("17.0834 mm")))
sketch3.addConstraint(Sketcher.Constraint("DistanceX", -1, 1, 8, 3, Q("17.0834 mm")))
sketch3.addConstraint(Sketcher.Constraint("DistanceX", 0, 3, 2, 2, Q("7.946702 mm")))
sketch3.addConstraint(Sketcher.Constraint("Distance", 4, Q("22.750061 mm")))
sketch3.addConstraint(Sketcher.Constraint("DistanceX", -1, 1, 3, 2, Q("25.880241 mm")))
sketch3.addConstraint(Sketcher.Constraint("DistanceY", -1, 1, 8, 1, Q("9.793519 mm")))
pocket2 = body.newObject("PartDesign::Pocket", "Pocket001")
pocket2.Profile = sketch3
pocket2.Length = 10
pocket2.Reversed = True
body2 = doc.addObject("PartDesign::Body", "Body001")

# Sketch on XZ plane
sketch4 = body2.newObject("Sketcher::SketchObject", "Sketch003")
sketch4.AttachmentSupport = (doc.getObject("XZ_Plane001"), [""])
sketch4.MapMode = "FlatFace"
sketch4.addGeometry(Part.LineSegment(V(0, 31.7, 0), V(0, 0, 0)), False)
sketch4.addGeometry(Part.LineSegment(V(0, 0, 0), V(43, 0, 0)), False)
sketch4.addGeometry(Part.LineSegment(V(43, 0, 0), V(43, 14.5, 0)), False)
sketch4.addGeometry(Part.LineSegment(V(43, 14.5, 0), V(42, 14.5, 0)), False)
sketch4.addGeometry(Part.LineSegment(V(42, 14.5, 0), V(42, 31.7, 0)), False)
sketch4.addGeometry(Part.LineSegment(V(42, 31.7, 0), V(0, 31.7, 0)), False)
sketch4.addConstraint(Sketcher.Constraint("Coincident", 0, 2, 1, 1))
sketch4.addConstraint(Sketcher.Constraint("Coincident", 1, 2, 2, 1))
sketch4.addConstraint(Sketcher.Constraint("Coincident", 2, 2, 3, 1))
sketch4.addConstraint(Sketcher.Constraint("Coincident", 3, 2, 4, 1))
sketch4.addConstraint(Sketcher.Constraint("Coincident", 4, 2, 5, 1))
sketch4.addConstraint(Sketcher.Constraint("Coincident", 5, 2, 0, 1))
sketch4.addConstraint(Sketcher.Constraint("Vertical", 0))
sketch4.addConstraint(Sketcher.Constraint("Horizontal", 1))
sketch4.addConstraint(Sketcher.Constraint("Vertical", 2))
sketch4.addConstraint(Sketcher.Constraint("Horizontal", 3))
sketch4.addConstraint(Sketcher.Constraint("Vertical", 4))
sketch4.addConstraint(Sketcher.Constraint("Horizontal", 5))
sketch4.addConstraint(Sketcher.Constraint("Coincident", 0, 2, -1, 1))
sketch4.addConstraint(Sketcher.Constraint("DistanceX", 1, 1, 1, 2, Q("43 mm")))
sketch4.addConstraint(Sketcher.Constraint("DistanceX", 3, 2, 3, 1, Q("1 mm")))
sketch4.addConstraint(Sketcher.Constraint("DistanceY", 0, 2, 0, 1, Q("31.7 mm")))
sketch4.addConstraint(Sketcher.Constraint("DistanceY", 2, 1, 2, 2, Q("14.5 mm")))
revolution2 = body2.newObject("PartDesign::Revolution", "Revolution001")
revolution2.Profile = sketch4
revolution2.ReferenceAxis = (sketch4, ["H_Axis"])
revolution2.Angle = 360

# Sketch on YZ plane
sketch5 = body2.newObject("Sketcher::SketchObject", "Sketch004")
sketch5.AttachmentSupport = (doc.getObject("YZ_Plane001"), [""])
sketch5.MapMode = "FlatFace"
sketch5.AttachmentOffset = App.Placement(V(0, 0, 43), App.Rotation())
sketch5.addGeometry(Part.Circle(V(0, 11, 0), V(0, 0, 1), 2), False)
sketch5.addGeometry(Part.Circle(V(-11, 0, 0), V(0, 0, 1), 2), False)
sketch5.addGeometry(Part.Circle(V(0, -11, 0), V(0, 0, 1), 2), False)
sketch5.addGeometry(Part.Circle(V(11, 0, 0), V(0, 0, 1), 2), False)
sketch5.addConstraint(Sketcher.Constraint("Equal", 0, 1))
sketch5.addConstraint(Sketcher.Constraint("Equal", 1, 2))
sketch5.addConstraint(Sketcher.Constraint("Equal", 2, 3))
sketch5.addConstraint(Sketcher.Constraint("Symmetric", 0, 3, 2, 3, -1, 1))
sketch5.addConstraint(Sketcher.Constraint("Symmetric", 1, 3, 3, 3, -1, 1))
sketch5.addConstraint(Sketcher.Constraint("PointOnObject", 0, 3, -2))
sketch5.addConstraint(Sketcher.Constraint("PointOnObject", 1, 3, -1))
sketch5.addConstraint(Sketcher.Constraint("Diameter", 0, Q("4 mm")))
sketch5.addConstraint(Sketcher.Constraint("DistanceY", -1, 1, 0, 3, Q("11 mm")))
sketch5.addConstraint(Sketcher.Constraint("DistanceX", 1, 3, -1, 1, Q("11 mm")))
pocket3 = body2.newObject("PartDesign::Pocket", "Pocket002")
pocket3.Profile = sketch5
pocket3.Length = 10
body3 = doc.addObject("PartDesign::Body", "Body002")

# Sketch on XZ plane
sketch6 = body3.newObject("Sketcher::SketchObject", "Sketch005")
sketch6.AttachmentSupport = (doc.getObject("XZ_Plane002"), [""])
sketch6.MapMode = "FlatFace"
sketch6.addGeometry(Part.LineSegment(V(-34.5, 4, 0), V(-34.5, 0, 0)), False)
sketch6.addGeometry(Part.LineSegment(V(-34.5, 0, 0), V(-0.5, 0, 0)), False)
sketch6.addGeometry(Part.LineSegment(V(-0.5, 0, 0), V(-0.5, 4, 0)), False)
sketch6.addGeometry(Part.LineSegment(V(-0.5, 4, 0), V(-34.5, 4, 0)), False)
sketch6.addConstraint(Sketcher.Constraint("Coincident", 0, 2, 1, 1))
sketch6.addConstraint(Sketcher.Constraint("Coincident", 1, 2, 2, 1))
sketch6.addConstraint(Sketcher.Constraint("Coincident", 2, 2, 3, 1))
sketch6.addConstraint(Sketcher.Constraint("Coincident", 3, 2, 0, 1))
sketch6.addConstraint(Sketcher.Constraint("Vertical", 0))
sketch6.addConstraint(Sketcher.Constraint("Horizontal", 1))
sketch6.addConstraint(Sketcher.Constraint("Vertical", 2))
sketch6.addConstraint(Sketcher.Constraint("Horizontal", 3))
sketch6.addConstraint(Sketcher.Constraint("PointOnObject", 0, 2, -1))
sketch6.addConstraint(Sketcher.Constraint("DistanceX", 1, 1, 1, 2, Q("34 mm")))
sketch6.addConstraint(Sketcher.Constraint("DistanceY", 0, 2, 0, 1, Q("4 mm")))
sketch6.addConstraint(Sketcher.Constraint("DistanceX", 0, 2, -1, 1, Q("34.5 mm")))
revolution3 = body3.newObject("PartDesign::Revolution", "Revolution002")
revolution3.Profile = sketch6
revolution3.ReferenceAxis = (sketch6, ["H_Axis"])
revolution3.Angle = 360

doc.recompute()
